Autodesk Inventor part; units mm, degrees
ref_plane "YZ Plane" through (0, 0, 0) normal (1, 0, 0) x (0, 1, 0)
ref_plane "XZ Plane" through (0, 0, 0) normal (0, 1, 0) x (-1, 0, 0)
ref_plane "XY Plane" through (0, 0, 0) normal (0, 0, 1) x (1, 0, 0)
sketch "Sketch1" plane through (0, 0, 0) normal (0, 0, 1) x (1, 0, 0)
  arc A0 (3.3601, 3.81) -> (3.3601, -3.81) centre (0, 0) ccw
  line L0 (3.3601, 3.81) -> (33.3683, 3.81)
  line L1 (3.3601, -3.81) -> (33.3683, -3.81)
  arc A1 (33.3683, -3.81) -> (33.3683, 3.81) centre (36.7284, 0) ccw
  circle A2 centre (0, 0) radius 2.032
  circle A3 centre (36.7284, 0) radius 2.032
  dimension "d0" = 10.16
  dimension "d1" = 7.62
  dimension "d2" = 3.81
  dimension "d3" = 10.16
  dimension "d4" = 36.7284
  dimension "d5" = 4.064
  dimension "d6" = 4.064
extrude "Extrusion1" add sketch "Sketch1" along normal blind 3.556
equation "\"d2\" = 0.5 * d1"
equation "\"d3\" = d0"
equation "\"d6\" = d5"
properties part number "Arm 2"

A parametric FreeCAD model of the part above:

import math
import FreeCAD as App
import Part
import Sketcher
Q = App.Units.Quantity

doc = App.newDocument("Part")
params = doc.addObject("Spreadsheet::Sheet", "Params")
for row, (alias, value) in enumerate([
    ("sketch1_radius", "0.2 in"),
    ("sketch1_diameter", "0.16 in"),
    ("pad1_length", "0.14 in"),
], start=1):
    params.set(f"A{row}", alias)
    params.set(f"B{row}", "=" + value)
    params.setAlias(f"B{row}", alias)

body = doc.addObject("PartDesign::Body", "Body")

sketch1 = body.newObject("Sketcher::SketchObject", "Sketch")
sketch1.AttachmentSupport = (doc.getObject("XY_Plane"), [""])
sketch1.MapMode = "FlatFace"
sketch1.addGeometry([
    Part.LineSegment(App.Vector(33.4, 3.8, 0), App.Vector(3.4, 3.8, 0)),
    Part.ArcOfCircle(Part.Circle(App.Vector(0, 0, 0), App.Vector(0, 0, 1), 5.1), math.radians(49), math.radians(311)),
    Part.LineSegment(App.Vector(3.4, -3.8, 0), App.Vector(33.4, -3.8, 0)),
    Part.ArcOfCircle(Part.Circle(App.Vector(36.7, 0, 0), App.Vector(0, 0, 1), 5.1), math.radians(-131), math.radians(131)),
    Part.Circle(App.Vector(0, 0, 0), App.Vector(0, 0, 1), 2),
    Part.Circle(App.Vector(36.7, 0, 0), App.Vector(0, 0, 1), 2),
], False)
sketch1.addConstraint([
    Sketcher.Constraint("Coincident", 0, 2, 1, 1),
    Sketcher.Constraint("Coincident", 1, 2, 2, 1),
    Sketcher.Constraint("Coincident", 2, 2, 3, 1),
    Sketcher.Constraint("Coincident", 3, 2, 0, 1),
    Sketcher.Constraint("Horizontal", 0),
    Sketcher.Constraint("Horizontal", 2),
    Sketcher.Constraint("Coincident", 1, 3, -1, 1),
    Sketcher.Constraint("Coincident", 4, 3, -1, 1),
    Sketcher.Constraint("Coincident", 5, 3, 3, 3),
    Sketcher.Constraint("Equal", 1, 3),
    Sketcher.Constraint("Equal", 4, 5),
    Sketcher.Constraint("Symmetric", 2, 2, 3, 2, -1),
    Sketcher.Constraint("Radius", 1, Q("0.2 in")),
    Sketcher.Constraint("Diameter", 4, Q("0.16 in")),
    Sketcher.Constraint("DistanceY", 1, 2, 0, 2, Q("0.3 in")),
    Sketcher.Constraint("DistanceX", -1, 1, 3, 3, Q("1.446 in")),
])
sketch1.setExpression("Constraints[12]", "Params.sketch1_radius")
sketch1.setExpression("Constraints[13]", "Params.sketch1_diameter")
pad1 = body.newObject("PartDesign::Pad", "Pad")
pad1.Profile = sketch1
pad1.setExpression("Length", "Params.pad1_length")

doc.recompute()
